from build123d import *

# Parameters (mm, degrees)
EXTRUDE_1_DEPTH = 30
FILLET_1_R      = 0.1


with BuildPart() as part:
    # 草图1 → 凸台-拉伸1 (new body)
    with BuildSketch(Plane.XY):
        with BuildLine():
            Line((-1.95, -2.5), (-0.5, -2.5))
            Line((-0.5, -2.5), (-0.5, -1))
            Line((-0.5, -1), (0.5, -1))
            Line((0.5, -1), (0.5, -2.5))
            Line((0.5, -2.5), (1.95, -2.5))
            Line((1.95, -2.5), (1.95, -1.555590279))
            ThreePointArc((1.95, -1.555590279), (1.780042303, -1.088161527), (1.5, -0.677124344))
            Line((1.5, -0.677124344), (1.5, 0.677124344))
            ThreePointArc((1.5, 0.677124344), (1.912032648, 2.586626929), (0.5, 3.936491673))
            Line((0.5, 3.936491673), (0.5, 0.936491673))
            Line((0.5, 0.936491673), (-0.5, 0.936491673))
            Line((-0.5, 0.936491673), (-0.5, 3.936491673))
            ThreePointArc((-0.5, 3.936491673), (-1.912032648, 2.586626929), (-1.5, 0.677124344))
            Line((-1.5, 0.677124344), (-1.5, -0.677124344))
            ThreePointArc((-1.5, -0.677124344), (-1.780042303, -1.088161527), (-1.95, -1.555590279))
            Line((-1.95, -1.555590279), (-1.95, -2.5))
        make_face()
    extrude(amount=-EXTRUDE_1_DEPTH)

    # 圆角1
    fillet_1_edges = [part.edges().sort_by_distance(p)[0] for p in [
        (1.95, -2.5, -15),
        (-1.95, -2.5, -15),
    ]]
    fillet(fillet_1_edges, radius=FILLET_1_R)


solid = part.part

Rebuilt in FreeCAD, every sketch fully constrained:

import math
import FreeCAD as App
import Part
import Sketcher
from FreeCAD import Vector


def edges_at(feature, points):
    """Names of the edges that pass closest to the given points."""
    edges = feature.Shape.Edges
    near = lambda p: min(range(len(edges)), key=lambda i: edges[i].distToShape(Part.Vertex(*p))[0])
    return sorted({f"Edge{near(p) + 1}" for p in points})

doc = App.newDocument("Part")
body = doc.addObject("PartDesign::Body", "Body")

# Sketch on XY plane
sketch1 = doc.addObject("Sketcher::SketchObject", "Sketch")
body.addObject(sketch1)
sketch1.AttachmentSupport = (doc.XY_Plane, [""])
sketch1.MapMode = "FlatFace"
sketch1.addGeometry(Part.LineSegment(Vector(-1.9, -2.5, 0), Vector(-0.5, -2.5, 0)), False)
sketch1.addGeometry(Part.LineSegment(Vector(-0.5, -2.5, 0), Vector(-0.5, -1, 0)), False)
sketch1.addGeometry(Part.LineSegment(Vector(-0.5, -1, 0), Vector(0.5, -1, 0)), False)
sketch1.addGeometry(Part.LineSegment(Vector(0.5, -1, 0), Vector(0.5, -2.5, 0)), False)
sketch1.addGeometry(Part.LineSegment(Vector(0.5, -2.5, 0), Vector(1.9, -2.5, 0)), False)
sketch1.addGeometry(Part.LineSegment(Vector(1.9, -2.5, 0), Vector(1.9, -1.6, 0)), False)
sketch1.addGeometry(Part.ArcOfCircle(Part.Circle(Vector(0, -2, 0), Vector(0, 0, 1), 2), math.radians(13), math.radians(41)), False)
sketch1.addGeometry(Part.LineSegment(Vector(1.5, -0.7, 0), Vector(1.5, 0.7, 0)), False)
sketch1.addGeometry(Part.ArcOfCircle(Part.Circle(Vector(0, 2, 0), Vector(0, 0, 1), 2), math.radians(-41), math.radians(76)), False)
sketch1.addGeometry(Part.LineSegment(Vector(0.5, 3.9, 0), Vector(0.5, 0.9, 0)), False)
sketch1.addGeometry(Part.LineSegment(Vector(0.5, 0.9, 0), Vector(-0.5, 0.9, 0)), False)
sketch1.addGeometry(Part.LineSegment(Vector(-0.5, 0.9, 0), Vector(-0.5, 3.9, 0)), False)
sketch1.addGeometry(Part.ArcOfCircle(Part.Circle(Vector(0, 2, 0), Vector(0, 0, 1), 2), math.radians(104), math.radians(221)), False)
sketch1.addGeometry(Part.LineSegment(Vector(-1.5, 0.7, 0), Vector(-1.5, -0.7, 0)), False)
sketch1.addGeometry(Part.ArcOfCircle(Part.Circle(Vector(0, -2, 0), Vector(0, 0, 1), 2), math.radians(139), math.radians(167)), False)
sketch1.addGeometry(Part.LineSegment(Vector(-1.9, -1.6, 0), Vector(-1.9, -2.5, 0)), False)
sketch1.addConstraint(Sketcher.Constraint("Coincident", 0, 2, 1, 1))
sketch1.addConstraint(Sketcher.Constraint("Coincident", 1, 2, 2, 1))
sketch1.addConstraint(Sketcher.Constraint("Coincident", 2, 2, 3, 1))
sketch1.addConstraint(Sketcher.Constraint("Coincident", 3, 2, 4, 1))
sketch1.addConstraint(Sketcher.Constraint("Coincident", 4, 2, 5, 1))
sketch1.addConstraint(Sketcher.Constraint("Coincident", 5, 2, 6, 1))
sketch1.addConstraint(Sketcher.Constraint("Coincident", 6, 2, 7, 1))
sketch1.addConstraint(Sketcher.Constraint("Coincident", 7, 2, 8, 1))
sketch1.addConstraint(Sketcher.Constraint("Coincident", 8, 2, 9, 1))
sketch1.addConstraint(Sketcher.Constraint("Coincident", 9, 2, 10, 1))
sketch1.addConstraint(Sketcher.Constraint("Coincident", 10, 2, 11, 1))
sketch1.addConstraint(Sketcher.Constraint("Coincident", 11, 2, 12, 1))
sketch1.addConstraint(Sketcher.Constraint("Coincident", 12, 2, 13, 1))
sketch1.addConstraint(Sketcher.Constraint("Coincident", 13, 2, 14, 1))
sketch1.addConstraint(Sketcher.Constraint("Coincident", 14, 2, 15, 1))
sketch1.addConstraint(Sketcher.Constraint("Coincident", 15, 2, 0, 1))
sketch1.addConstraint(Sketcher.Constraint("Horizontal", 0))
sketch1.addConstraint(Sketcher.Constraint("Vertical", 1))
sketch1.addConstraint(Sketcher.Constraint("Horizontal", 2))
sketch1.addConstraint(Sketcher.Constraint("Vertical", 3))
sketch1.addConstraint(Sketcher.Constraint("Horizontal", 4))
sketch1.addConstraint(Sketcher.Constraint("Vertical", 5))
sketch1.addConstraint(Sketcher.Constraint("Vertical", 7))
sketch1.addConstraint(Sketcher.Constraint("Vertical", 9))
sketch1.addConstraint(Sketcher.Constraint("Horizontal", 10))
sketch1.addConstraint(Sketcher.Constraint("Vertical", 11))
sketch1.addConstraint(Sketcher.Constraint("Vertical", 13))
sketch1.addConstraint(Sketcher.Constraint("Vertical", 15))
sketch1.addConstraint(Sketcher.Constraint("Coincident", 12, 3, 8, 3))
sketch1.addConstraint(Sketcher.Constraint("Coincident", 14, 3, 6, 3))
sketch1.addConstraint(Sketcher.Constraint("Equal", 6, 8))
sketch1.addConstraint(Sketcher.Constraint("Equal", 8, 12))
sketch1.addConstraint(Sketcher.Constraint("Equal", 12, 14))
sketch1.addConstraint(Sketcher.Constraint("Symmetric", 6, 3, 8, 3, -1, 1))
sketch1.addConstraint(Sketcher.Constraint("Symmetric", 0, 2, 3, 2, -2))
sketch1.addConstraint(Sketcher.Constraint("Symmetric", 8, 2, 11, 2, -2))
sketch1.addConstraint(Sketcher.Constraint("Horizontal", 7, 2, 12, 2))
sketch1.addConstraint(Sketcher.Constraint("Horizontal", 5, 2, 14, 2))
sketch1.addConstraint(Sketcher.Constraint("Vertical", 3, 2, 8, 2))
sketch1.addConstraint(Sketcher.Constraint("Radius", 6, 2.0))
sketch1.addConstraint(Sketcher.Constraint("DistanceX", 2, 1, 2, 2, 1.0))
sketch1.addConstraint(Sketcher.Constraint("DistanceY", 9, 2, 9, 1, 3.0))
sketch1.addConstraint(Sketcher.Constraint("DistanceY", 1, 1, 1, 2, 1.5))
sketch1.addConstraint(Sketcher.Constraint("DistanceY", 6, 3, -1, 1, 2.0))
sketch1.addConstraint(Sketcher.Constraint("DistanceY", 1, 2, -1, 1, 1.0))
sketch1.addConstraint(Sketcher.Constraint("DistanceX", 2, 2, 6, 2, 1.0))
sketch1.addConstraint(Sketcher.Constraint("DistanceX", 0, 1, 0, 2, 1.45))
pad1 = doc.addObject("PartDesign::Pad", "Pad")
body.addObject(pad1)
pad1.Profile = sketch1
pad1.Length = 30
pad1.Reversed = True
doc.recompute()

fillet = doc.addObject("PartDesign::Fillet", "Fillet")
body.addObject(fillet)
fillet.Base = (pad1, edges_at(pad1, [(1.95, -2.5, -15), (-1.95, -2.5, -15)]))
fillet.Radius = 0.1

doc.recompute()
